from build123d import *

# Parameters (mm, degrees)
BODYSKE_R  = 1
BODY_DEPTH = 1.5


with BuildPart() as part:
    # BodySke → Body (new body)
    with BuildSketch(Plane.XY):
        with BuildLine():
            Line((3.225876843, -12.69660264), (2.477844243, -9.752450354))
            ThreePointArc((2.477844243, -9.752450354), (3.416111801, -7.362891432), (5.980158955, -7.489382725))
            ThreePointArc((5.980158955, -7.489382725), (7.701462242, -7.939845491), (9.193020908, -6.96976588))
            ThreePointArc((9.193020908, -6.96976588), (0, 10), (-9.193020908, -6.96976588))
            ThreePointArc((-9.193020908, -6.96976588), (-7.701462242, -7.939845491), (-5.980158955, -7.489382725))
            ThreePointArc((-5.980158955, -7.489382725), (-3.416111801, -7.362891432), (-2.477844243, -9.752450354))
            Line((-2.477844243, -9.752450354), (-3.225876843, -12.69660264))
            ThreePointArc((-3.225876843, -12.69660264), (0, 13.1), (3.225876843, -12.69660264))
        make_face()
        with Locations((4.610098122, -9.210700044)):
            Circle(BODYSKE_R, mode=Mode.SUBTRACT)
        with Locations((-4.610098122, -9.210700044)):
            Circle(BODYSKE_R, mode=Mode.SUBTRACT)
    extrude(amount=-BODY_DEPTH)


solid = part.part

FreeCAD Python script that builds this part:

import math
import FreeCAD as App
import Part
import Sketcher

doc = App.newDocument("Part")
body = doc.addObject("PartDesign::Body", "Body")

# Sketch on XY plane
sketch1 = doc.addObject("Sketcher::SketchObject", "Sketch")
body.addObject(sketch1)
sketch1.AttachmentSupport = (doc.XY_Plane, [""])
sketch1.MapMode = "FlatFace"
sketch1.addGeometry(Part.LineSegment(App.Vector(2.5, -9.8, 0), App.Vector(3.2, -12.7, 0)), False)
sketch1.addGeometry(Part.ArcOfCircle(Part.Circle(App.Vector(0, 0, 0), App.Vector(0, 0, 1), 13.1), math.radians(-76), math.radians(256)), False)
sketch1.addGeometry(Part.LineSegment(App.Vector(-3.2, -12.7, 0), App.Vector(-2.5, -9.8, 0)), False)
sketch1.addGeometry(Part.ArcOfCircle(Part.Circle(App.Vector(-4.6, -9.2, 0), App.Vector(0, 0, 1), 2.2), math.radians(-14), math.radians(129)), False)
sketch1.addGeometry(Part.ArcOfCircle(Part.Circle(App.Vector(-7.4, -5.8, 0), App.Vector(0, 0, 1), 2.2), math.radians(-147), math.radians(-51)), False)
sketch1.addGeometry(Part.ArcOfCircle(Part.Circle(App.Vector(0, -1, 0), App.Vector(0, 0, 1), 11), math.radians(-33), math.radians(213)), False)
sketch1.addGeometry(Part.ArcOfCircle(Part.Circle(App.Vector(7.4, -5.8, 0), App.Vector(0, 0, 1), 2.2), math.radians(-129), math.radians(-33)), False)
sketch1.addGeometry(Part.ArcOfCircle(Part.Circle(App.Vector(4.6, -9.2, 0), App.Vector(0, 0, 1), 2.2), math.radians(51), math.radians(194)), False)
sketch1.addGeometry(Part.Circle(App.Vector(4.6, -9.2, 0), App.Vector(0, 0, 1), 1), False)
sketch1.addGeometry(Part.Circle(App.Vector(-4.6, -9.2, 0), App.Vector(0, 0, 1), 1), False)
sketch1.addConstraint(Sketcher.Constraint("Coincident", 0, 2, 1, 1))
sketch1.addConstraint(Sketcher.Constraint("Coincident", 1, 2, 2, 1))
sketch1.addConstraint(Sketcher.Constraint("Tangent", 2, 2, 3, 1))
sketch1.addConstraint(Sketcher.Constraint("Tangent", 3, 2, 4, 2))
sketch1.addConstraint(Sketcher.Constraint("Tangent", 4, 1, 5, 2))
sketch1.addConstraint(Sketcher.Constraint("Tangent", 5, 1, 6, 2))
sketch1.addConstraint(Sketcher.Constraint("Tangent", 6, 1, 7, 1))
sketch1.addConstraint(Sketcher.Constraint("Tangent", 7, 2, 0, 1))
sketch1.addConstraint(Sketcher.Constraint("Coincident", 1, 3, -1, 1))
sketch1.addConstraint(Sketcher.Constraint("Coincident", 8, 3, 7, 3))
sketch1.addConstraint(Sketcher.Constraint("Coincident", 9, 3, 3, 3))
sketch1.addConstraint(Sketcher.Constraint("Equal", 3, 4))
sketch1.addConstraint(Sketcher.Constraint("Equal", 4, 6))
sketch1.addConstraint(Sketcher.Constraint("Equal", 6, 7))
sketch1.addConstraint(Sketcher.Constraint("Equal", 8, 9))
sketch1.addConstraint(Sketcher.Constraint("Symmetric", 4, 3, 6, 3, -2))
sketch1.addConstraint(Sketcher.Constraint("Symmetric", 2, 2, 7, 2, -2))
sketch1.addConstraint(Sketcher.Constraint("Diameter", 8, 2.0))
sketch1.addConstraint(Sketcher.Constraint("Radius", 1, 13.1))
sketch1.addConstraint(Sketcher.Constraint("Radius", 3, 2.2))
sketch1.addConstraint(Sketcher.Constraint("Radius", 5, 10.974948))
sketch1.addConstraint(Sketcher.Constraint("DistanceX", 3, 3, -1, 1, 4.610098))
sketch1.addConstraint(Sketcher.Constraint("DistanceY", 3, 3, -1, 1, 9.2107))
sketch1.addConstraint(Sketcher.Constraint("DistanceX", 4, 1, 4, 3, 1.842801))
sketch1.addConstraint(Sketcher.Constraint("DistanceY", 2, 2, -1, 1, 9.75245))
pad1 = doc.addObject("PartDesign::Pad", "Pad")
body.addObject(pad1)
pad1.Profile = sketch1
pad1.Length = 1.5
pad1.Reversed = True

doc.recompute()
